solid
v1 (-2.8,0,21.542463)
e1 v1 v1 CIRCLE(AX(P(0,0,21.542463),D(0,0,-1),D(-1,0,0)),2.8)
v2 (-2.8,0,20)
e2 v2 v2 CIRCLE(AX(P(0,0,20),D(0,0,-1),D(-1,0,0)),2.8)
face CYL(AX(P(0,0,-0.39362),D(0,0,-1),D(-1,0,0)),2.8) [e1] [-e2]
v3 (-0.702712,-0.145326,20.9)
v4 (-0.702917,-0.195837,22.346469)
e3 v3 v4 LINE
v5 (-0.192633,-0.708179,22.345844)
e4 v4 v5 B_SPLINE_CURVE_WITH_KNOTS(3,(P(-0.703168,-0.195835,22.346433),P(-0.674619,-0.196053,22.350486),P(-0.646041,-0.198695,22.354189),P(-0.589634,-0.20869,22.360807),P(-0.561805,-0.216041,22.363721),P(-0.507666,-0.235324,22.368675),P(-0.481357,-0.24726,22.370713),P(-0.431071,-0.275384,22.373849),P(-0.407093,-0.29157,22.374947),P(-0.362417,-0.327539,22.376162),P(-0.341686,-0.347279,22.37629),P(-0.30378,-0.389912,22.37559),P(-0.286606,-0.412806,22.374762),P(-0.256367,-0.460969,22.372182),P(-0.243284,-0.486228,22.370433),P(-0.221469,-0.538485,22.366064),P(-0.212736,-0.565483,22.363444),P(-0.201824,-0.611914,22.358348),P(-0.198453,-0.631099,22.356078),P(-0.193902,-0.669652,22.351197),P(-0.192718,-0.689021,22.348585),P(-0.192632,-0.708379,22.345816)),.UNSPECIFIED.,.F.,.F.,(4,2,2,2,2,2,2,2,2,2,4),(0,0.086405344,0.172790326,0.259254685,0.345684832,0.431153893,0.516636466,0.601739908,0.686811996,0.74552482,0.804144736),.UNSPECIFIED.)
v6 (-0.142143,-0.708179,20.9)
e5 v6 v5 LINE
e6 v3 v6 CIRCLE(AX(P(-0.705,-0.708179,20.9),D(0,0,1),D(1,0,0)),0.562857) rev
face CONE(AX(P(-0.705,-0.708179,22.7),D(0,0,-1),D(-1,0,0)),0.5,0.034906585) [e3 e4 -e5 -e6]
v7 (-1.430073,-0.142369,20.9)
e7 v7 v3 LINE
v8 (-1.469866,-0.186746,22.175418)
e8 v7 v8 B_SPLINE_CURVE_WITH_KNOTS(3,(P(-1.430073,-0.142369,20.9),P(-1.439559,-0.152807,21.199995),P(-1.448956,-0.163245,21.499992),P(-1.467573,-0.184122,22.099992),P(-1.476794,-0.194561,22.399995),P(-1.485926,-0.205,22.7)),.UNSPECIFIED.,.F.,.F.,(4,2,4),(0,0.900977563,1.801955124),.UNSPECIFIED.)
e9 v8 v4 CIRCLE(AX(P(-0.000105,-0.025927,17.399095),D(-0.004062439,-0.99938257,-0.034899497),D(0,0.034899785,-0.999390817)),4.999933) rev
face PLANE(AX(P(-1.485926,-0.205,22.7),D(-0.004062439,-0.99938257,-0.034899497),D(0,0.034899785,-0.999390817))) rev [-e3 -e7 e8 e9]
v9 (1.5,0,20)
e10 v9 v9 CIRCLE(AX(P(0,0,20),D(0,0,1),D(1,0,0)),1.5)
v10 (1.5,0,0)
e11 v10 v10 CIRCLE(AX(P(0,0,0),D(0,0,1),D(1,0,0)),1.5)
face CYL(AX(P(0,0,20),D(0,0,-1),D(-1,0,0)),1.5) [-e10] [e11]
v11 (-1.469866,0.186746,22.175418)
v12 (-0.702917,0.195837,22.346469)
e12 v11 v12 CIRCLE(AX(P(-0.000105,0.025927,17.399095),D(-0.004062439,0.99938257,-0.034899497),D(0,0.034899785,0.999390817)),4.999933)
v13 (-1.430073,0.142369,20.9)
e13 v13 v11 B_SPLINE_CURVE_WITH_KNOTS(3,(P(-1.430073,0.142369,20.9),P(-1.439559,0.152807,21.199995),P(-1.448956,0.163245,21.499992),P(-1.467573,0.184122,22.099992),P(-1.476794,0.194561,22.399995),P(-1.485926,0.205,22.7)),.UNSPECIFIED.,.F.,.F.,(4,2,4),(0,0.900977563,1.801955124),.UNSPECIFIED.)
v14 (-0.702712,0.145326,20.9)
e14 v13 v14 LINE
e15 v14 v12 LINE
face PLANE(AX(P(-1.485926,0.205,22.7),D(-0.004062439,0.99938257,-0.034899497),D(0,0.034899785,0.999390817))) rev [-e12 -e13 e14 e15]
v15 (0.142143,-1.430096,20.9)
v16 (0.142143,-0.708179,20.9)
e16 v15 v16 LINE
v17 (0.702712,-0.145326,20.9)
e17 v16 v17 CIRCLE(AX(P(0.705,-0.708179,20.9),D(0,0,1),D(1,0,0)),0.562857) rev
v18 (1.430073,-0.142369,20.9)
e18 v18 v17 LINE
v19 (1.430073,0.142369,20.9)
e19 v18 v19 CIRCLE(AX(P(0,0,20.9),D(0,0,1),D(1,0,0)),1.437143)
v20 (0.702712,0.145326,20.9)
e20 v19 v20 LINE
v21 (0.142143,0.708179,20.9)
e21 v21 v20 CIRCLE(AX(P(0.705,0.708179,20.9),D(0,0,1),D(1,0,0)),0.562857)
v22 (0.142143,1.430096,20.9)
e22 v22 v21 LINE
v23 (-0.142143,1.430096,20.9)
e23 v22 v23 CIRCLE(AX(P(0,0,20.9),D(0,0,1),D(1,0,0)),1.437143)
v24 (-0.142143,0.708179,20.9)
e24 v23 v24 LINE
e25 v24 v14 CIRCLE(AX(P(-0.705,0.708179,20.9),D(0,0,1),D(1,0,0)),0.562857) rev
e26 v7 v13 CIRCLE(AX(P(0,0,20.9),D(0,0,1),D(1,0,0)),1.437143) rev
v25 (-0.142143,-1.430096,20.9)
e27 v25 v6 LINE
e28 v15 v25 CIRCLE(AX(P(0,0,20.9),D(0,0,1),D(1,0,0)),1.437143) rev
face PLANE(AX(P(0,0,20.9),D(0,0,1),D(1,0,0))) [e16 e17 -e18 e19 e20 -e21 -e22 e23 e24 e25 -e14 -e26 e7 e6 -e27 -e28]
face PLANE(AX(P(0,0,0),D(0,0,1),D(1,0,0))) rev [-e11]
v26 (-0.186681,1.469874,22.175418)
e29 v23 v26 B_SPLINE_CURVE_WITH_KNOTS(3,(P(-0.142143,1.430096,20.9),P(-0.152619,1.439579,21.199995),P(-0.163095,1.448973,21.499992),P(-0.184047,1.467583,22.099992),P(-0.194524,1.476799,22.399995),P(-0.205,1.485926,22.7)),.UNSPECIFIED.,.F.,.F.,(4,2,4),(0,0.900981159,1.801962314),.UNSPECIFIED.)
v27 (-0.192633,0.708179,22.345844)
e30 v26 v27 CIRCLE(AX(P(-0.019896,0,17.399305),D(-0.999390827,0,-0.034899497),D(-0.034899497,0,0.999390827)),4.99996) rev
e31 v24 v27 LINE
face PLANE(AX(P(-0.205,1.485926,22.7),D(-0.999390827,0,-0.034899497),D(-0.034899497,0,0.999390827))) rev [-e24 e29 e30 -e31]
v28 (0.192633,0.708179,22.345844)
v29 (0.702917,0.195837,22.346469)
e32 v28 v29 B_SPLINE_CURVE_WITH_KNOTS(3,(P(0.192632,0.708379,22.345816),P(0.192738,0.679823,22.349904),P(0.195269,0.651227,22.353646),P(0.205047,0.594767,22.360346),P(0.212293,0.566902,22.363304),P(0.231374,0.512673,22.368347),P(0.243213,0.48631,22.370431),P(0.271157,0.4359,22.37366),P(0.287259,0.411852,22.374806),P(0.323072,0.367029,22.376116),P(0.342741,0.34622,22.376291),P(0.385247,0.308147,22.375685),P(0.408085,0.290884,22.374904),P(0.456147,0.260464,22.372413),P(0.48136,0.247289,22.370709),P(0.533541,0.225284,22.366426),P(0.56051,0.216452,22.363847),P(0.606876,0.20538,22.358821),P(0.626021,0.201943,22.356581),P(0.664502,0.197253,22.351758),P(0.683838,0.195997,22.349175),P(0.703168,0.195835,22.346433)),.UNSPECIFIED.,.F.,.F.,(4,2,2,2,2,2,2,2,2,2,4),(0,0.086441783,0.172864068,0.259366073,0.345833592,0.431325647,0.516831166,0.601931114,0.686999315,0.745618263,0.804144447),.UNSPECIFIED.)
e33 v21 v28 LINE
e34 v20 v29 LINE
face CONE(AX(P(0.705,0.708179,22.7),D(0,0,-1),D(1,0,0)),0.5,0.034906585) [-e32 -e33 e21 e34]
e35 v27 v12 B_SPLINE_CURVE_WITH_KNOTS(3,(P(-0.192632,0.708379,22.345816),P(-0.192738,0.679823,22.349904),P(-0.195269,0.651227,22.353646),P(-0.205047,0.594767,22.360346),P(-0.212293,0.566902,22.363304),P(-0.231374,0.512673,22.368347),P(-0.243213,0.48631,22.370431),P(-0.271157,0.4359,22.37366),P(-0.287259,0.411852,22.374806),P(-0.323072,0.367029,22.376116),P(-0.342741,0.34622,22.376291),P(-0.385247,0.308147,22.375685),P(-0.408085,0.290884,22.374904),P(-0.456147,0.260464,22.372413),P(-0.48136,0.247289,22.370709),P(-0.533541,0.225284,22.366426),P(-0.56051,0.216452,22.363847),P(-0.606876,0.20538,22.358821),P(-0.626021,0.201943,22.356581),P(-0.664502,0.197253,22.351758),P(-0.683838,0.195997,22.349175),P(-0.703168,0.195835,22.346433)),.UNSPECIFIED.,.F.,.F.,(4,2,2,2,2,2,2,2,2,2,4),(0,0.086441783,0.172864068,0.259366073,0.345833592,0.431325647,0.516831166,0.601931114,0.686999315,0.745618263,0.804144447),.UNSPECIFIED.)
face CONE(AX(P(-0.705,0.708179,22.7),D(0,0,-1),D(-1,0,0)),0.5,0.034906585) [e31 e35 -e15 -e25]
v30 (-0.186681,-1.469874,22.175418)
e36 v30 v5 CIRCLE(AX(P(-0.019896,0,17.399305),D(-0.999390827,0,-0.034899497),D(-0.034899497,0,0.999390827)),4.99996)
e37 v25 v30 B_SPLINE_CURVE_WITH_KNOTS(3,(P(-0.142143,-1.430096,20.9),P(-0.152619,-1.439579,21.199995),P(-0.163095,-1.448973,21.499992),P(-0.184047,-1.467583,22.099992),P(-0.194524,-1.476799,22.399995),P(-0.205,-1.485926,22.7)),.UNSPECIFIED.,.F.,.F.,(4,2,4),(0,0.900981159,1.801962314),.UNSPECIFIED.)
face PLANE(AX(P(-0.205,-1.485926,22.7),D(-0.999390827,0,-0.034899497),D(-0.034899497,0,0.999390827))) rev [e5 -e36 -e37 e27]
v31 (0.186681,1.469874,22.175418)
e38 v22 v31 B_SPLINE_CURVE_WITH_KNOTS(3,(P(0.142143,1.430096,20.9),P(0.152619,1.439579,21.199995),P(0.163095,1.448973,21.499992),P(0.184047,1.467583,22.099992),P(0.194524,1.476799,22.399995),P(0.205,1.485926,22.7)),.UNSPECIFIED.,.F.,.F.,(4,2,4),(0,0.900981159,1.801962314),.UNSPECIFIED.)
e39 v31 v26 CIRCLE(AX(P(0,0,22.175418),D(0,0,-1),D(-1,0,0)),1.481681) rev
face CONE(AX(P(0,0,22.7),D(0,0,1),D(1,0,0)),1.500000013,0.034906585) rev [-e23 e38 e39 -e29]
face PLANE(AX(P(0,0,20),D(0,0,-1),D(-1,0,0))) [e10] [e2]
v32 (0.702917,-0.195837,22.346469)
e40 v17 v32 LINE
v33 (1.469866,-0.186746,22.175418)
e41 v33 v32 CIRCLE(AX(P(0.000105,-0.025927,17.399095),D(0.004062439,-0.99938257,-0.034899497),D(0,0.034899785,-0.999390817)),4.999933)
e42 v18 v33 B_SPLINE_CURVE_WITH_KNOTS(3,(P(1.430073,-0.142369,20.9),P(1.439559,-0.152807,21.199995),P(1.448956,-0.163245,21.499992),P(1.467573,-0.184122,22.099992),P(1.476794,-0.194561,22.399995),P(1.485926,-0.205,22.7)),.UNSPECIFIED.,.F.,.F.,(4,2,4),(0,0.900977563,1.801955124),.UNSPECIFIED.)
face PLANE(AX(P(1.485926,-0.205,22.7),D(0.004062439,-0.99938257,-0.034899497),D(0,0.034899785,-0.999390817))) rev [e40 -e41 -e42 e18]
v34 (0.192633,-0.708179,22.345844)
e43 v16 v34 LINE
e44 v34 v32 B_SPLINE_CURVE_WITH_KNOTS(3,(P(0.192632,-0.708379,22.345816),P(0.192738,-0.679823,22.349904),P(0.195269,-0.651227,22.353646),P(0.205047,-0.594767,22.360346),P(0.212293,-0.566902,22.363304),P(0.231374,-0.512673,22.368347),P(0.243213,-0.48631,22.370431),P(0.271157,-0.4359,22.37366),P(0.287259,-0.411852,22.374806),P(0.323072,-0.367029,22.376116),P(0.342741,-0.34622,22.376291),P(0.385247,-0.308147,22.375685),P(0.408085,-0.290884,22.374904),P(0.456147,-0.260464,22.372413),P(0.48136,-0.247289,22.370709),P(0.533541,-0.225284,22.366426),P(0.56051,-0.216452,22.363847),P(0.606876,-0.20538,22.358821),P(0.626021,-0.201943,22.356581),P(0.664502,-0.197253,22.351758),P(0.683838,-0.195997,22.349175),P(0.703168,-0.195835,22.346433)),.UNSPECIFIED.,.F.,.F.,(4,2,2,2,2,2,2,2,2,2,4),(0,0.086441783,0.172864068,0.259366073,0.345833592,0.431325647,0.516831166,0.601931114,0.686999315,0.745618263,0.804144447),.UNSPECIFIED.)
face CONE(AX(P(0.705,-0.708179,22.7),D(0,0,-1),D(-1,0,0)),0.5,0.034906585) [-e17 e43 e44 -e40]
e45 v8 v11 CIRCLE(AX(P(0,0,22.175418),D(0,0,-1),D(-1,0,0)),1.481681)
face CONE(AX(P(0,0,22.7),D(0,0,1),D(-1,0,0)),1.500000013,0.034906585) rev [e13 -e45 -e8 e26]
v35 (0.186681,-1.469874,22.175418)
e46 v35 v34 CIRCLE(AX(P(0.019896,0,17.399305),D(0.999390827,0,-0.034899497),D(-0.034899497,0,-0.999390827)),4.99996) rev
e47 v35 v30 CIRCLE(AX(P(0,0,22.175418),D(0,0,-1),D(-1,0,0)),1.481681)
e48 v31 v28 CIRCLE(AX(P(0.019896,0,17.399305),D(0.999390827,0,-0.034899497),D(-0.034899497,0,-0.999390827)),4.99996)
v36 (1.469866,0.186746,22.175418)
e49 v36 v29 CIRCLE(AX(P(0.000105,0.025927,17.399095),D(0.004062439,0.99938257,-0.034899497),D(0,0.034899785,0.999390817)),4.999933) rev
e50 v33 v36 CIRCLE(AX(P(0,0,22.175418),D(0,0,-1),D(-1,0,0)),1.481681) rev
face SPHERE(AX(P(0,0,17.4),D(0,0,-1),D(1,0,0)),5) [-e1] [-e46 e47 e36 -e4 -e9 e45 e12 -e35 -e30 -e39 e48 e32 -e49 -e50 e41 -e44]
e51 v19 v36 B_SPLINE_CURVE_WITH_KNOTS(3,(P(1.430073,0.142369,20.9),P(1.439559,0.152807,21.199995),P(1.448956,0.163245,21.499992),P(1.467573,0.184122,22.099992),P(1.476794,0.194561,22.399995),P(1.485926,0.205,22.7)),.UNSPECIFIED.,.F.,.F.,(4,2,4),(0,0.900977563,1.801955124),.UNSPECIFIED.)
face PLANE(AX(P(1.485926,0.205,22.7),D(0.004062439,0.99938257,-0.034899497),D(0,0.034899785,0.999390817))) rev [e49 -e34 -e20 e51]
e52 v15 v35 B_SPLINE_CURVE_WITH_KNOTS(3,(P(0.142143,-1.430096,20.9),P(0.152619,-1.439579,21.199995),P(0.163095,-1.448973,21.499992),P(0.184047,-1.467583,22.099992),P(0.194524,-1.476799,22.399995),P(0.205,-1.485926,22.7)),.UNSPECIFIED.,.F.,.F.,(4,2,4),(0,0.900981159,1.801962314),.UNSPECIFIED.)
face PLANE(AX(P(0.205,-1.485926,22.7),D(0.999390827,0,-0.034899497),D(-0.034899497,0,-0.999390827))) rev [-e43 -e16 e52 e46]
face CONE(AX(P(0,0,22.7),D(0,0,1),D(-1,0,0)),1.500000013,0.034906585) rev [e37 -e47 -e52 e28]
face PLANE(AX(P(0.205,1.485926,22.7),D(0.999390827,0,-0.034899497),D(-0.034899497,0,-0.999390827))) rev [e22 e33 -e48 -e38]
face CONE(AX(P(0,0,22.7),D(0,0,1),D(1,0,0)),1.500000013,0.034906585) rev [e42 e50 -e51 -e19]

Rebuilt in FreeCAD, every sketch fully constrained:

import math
import FreeCAD as App
import Part
import Sketcher
Q = App.Units.Quantity

doc = App.newDocument("Part")
body = doc.addObject("PartDesign::Body", "Body")

sketch1 = doc.addObject("Sketcher::SketchObject", "Sketch")
body.addObject(sketch1)
sketch1.AttachmentSupport = (doc.XY_Plane, [""])
sketch1.MapMode = "FlatFace"
sketch1.addGeometry(Part.Circle(App.Vector(0, 0, 0), App.Vector(0, 0, 1), 1.5), False)
sketch1.addConstraint([
    Sketcher.Constraint("Coincident", 0, 3, -1, 1),
    Sketcher.Constraint("Diameter", 0, Q("3 mm")),
])
pad1 = doc.addObject("PartDesign::Pad", "Pad")
body.addObject(pad1)
pad1.Profile = sketch1
pad1.Length = 20

sketch2 = doc.addObject("Sketcher::SketchObject", "Sketch001")
body.addObject(sketch2)
sketch2.AttachmentSupport = (doc.XZ_Plane, [""])
sketch2.MapMode = "FlatFace"
sketch2.addGeometry([
    Part.LineSegment(App.Vector(2.8, 20, 0), App.Vector(0, 20, 0)),
    Part.LineSegment(App.Vector(0, 20, 0), App.Vector(0, 22.4, 0)),
    Part.ArcOfCircle(Part.Circle(App.Vector(0, 17.4, 0), App.Vector(0, 0, 1), 5), math.radians(55.944203), math.radians(90)),
    Part.LineSegment(App.Vector(2.8, 21.542463, 0), App.Vector(2.8, 20, 0)),
], False)
sketch2.addConstraint([
    Sketcher.Constraint("Coincident", 0, 2, 1, 1),
    Sketcher.Constraint("Coincident", 1, 2, 2, 2),
    Sketcher.Constraint("Coincident", 2, 1, 3, 1),
    Sketcher.Constraint("Coincident", 3, 2, 0, 1),
    Sketcher.Constraint("Horizontal", 0),
    Sketcher.Constraint("Vertical", 1),
    Sketcher.Constraint("Vertical", 3),
    Sketcher.Constraint("PointOnObject", 2, 3, -2),
    Sketcher.Constraint("PointOnObject", 0, 2, -2),
    Sketcher.Constraint("Radius", 2, Q("5 mm")),
    Sketcher.Constraint("DistanceX", 0, 2, 0, 1, Q("2.8 mm")),
    Sketcher.Constraint("DistanceY", 1, 1, 1, 2, Q("2.4 mm")),
    Sketcher.Constraint("DistanceY", -1, 1, 0, 2, Q("20 mm")),
])
revolution = doc.addObject("PartDesign::Revolution", "Revolution")
body.addObject(revolution)
revolution.Profile = sketch2
revolution.ReferenceAxis = (sketch2, ["V_Axis"])
revolution.Angle = 360

sketch3 = doc.addObject("Sketcher::SketchObject", "Sketch002")
body.addObject(sketch3)
sketch3.AttachmentSupport = (doc.XY_Plane, [""])
sketch3.MapMode = "FlatFace"
sketch3.AttachmentOffset = App.Placement(App.Vector(0, 0, 22.7), App.Rotation())
sketch3.addGeometry([
    Part.ArcOfCircle(Part.Circle(App.Vector(0, 0, 0), App.Vector(0, 0, 1), 1.5), math.radians(82.144994), math.radians(97.855006)),
    Part.LineSegment(App.Vector(0.205, 1.485926, 0), App.Vector(0.205, 0.708179, 0)),
    Part.ArcOfCircle(Part.Circle(App.Vector(0.705, 0.708179, 0), App.Vector(0, 0, 1), 0.5), math.radians(180), math.radians(269.767097)),
    Part.LineSegment(App.Vector(0.702968, 0.208183, 0), App.Vector(1.485926, 0.205, 0)),
    Part.ArcOfCircle(Part.Circle(App.Vector(0, 0, 0), App.Vector(0, 0, 1), 1.5), math.radians(-7.855006), math.radians(7.855006)),
    Part.LineSegment(App.Vector(1.485926, -0.205, 0), App.Vector(0.702968, -0.208183, 0)),
    Part.ArcOfCircle(Part.Circle(App.Vector(0.705, -0.708179, 0), App.Vector(0, 0, 1), 0.5), math.radians(90.232903), math.radians(180)),
    Part.LineSegment(App.Vector(0.205, -0.708179, 0), App.Vector(0.205, -1.485926, 0)),
    Part.ArcOfCircle(Part.Circle(App.Vector(0, 0, 0), App.Vector(0, 0, 1), 1.5), math.radians(-97.855006), math.radians(-82.144994)),
    Part.LineSegment(App.Vector(-0.205, -1.485926, 0), App.Vector(-0.205, -0.708179, 0)),
    Part.ArcOfCircle(Part.Circle(App.Vector(-0.705, -0.708179, 0), App.Vector(0, 0, 1), 0.5), math.radians(0), math.radians(89.767097)),
    Part.LineSegment(App.Vector(-0.702968, -0.208183, 0), App.Vector(-1.485926, -0.205, 0)),
    Part.ArcOfCircle(Part.Circle(App.Vector(0, 0, 0), App.Vector(0, 0, 1), 1.5), math.radians(172.144994), math.radians(187.855006)),
    Part.LineSegment(App.Vector(-1.485926, 0.205, 0), App.Vector(-0.702968, 0.208183, 0)),
    Part.ArcOfCircle(Part.Circle(App.Vector(-0.705, 0.708179, 0), App.Vector(0, 0, 1), 0.5), math.radians(-89.767097), math.radians(0)),
    Part.LineSegment(App.Vector(-0.205, 0.708179, 0), App.Vector(-0.205, 1.485926, 0)),
], False)
sketch3.addConstraint([
    Sketcher.Constraint("Coincident", 0, 1, 1, 1),
    Sketcher.Constraint("Tangent", 1, 2, 2, 1),
    Sketcher.Constraint("Tangent", 2, 2, 3, 1),
    Sketcher.Constraint("Coincident", 3, 2, 4, 2),
    Sketcher.Constraint("Coincident", 4, 1, 5, 1),
    Sketcher.Constraint("Tangent", 5, 2, 6, 1),
    Sketcher.Constraint("Tangent", 6, 2, 7, 1),
    Sketcher.Constraint("Coincident", 7, 2, 8, 2),
    Sketcher.Constraint("Coincident", 8, 1, 9, 1),
    Sketcher.Constraint("Tangent", 9, 2, 10, 1),
    Sketcher.Constraint("Tangent", 10, 2, 11, 1),
    Sketcher.Constraint("Coincident", 11, 2, 12, 2),
    Sketcher.Constraint("Coincident", 12, 1, 13, 1),
    Sketcher.Constraint("Tangent", 13, 2, 14, 1),
    Sketcher.Constraint("Tangent", 14, 2, 15, 1),
    Sketcher.Constraint("Coincident", 15, 2, 0, 2),
    Sketcher.Constraint("Vertical", 1),
    Sketcher.Constraint("Vertical", 7),
    Sketcher.Constraint("Vertical", 9),
    Sketcher.Constraint("Vertical", 15),
    Sketcher.Constraint("Coincident", 0, 3, -1, 1),
    Sketcher.Constraint("Coincident", 4, 3, -1, 1),
    Sketcher.Constraint("Coincident", 8, 3, -1, 1),
    Sketcher.Constraint("Coincident", 12, 3, -1, 1),
    Sketcher.Constraint("Equal", 0, 4),
    Sketcher.Constraint("Equal", 2, 6),
    Sketcher.Constraint("Equal", 4, 8),
    Sketcher.Constraint("Equal", 6, 10),
    Sketcher.Constraint("Equal", 8, 12),
    Sketcher.Constraint("Equal", 10, 14),
    Sketcher.Constraint("Symmetric", 2, 3, 10, 3, -1, 1),
    Sketcher.Constraint("Symmetric", 6, 3, 14, 3, -1, 1),
    Sketcher.Constraint("Symmetric", 6, 3, 10, 3, -2),
    Sketcher.Constraint("Parallel", 3, 11),
    Sketcher.Constraint("Parallel", 5, 13),
    Sketcher.Constraint("Horizontal", 4, 1, 11, 2),
    Sketcher.Constraint("Radius", 0, Q("1.5 mm")),
    Sketcher.Constraint("Radius", 2, Q("0.5 mm")),
    Sketcher.Constraint("DistanceX", 10, 3, 6, 3, Q("1.41 mm")),
    Sketcher.Constraint("DistanceY", 4, 1, 3, 2, Q("0.41 mm")),
    Sketcher.Constraint("DistanceY", 1, 2, 1, 1, Q("0.777747 mm")),
])
pocket1 = doc.addObject("PartDesign::Pocket", "Pocket")
body.addObject(pocket1)
pocket1.Profile = sketch3
pocket1.Length = 1.8
pocket1.TaperAngle = -2

doc.recompute()
